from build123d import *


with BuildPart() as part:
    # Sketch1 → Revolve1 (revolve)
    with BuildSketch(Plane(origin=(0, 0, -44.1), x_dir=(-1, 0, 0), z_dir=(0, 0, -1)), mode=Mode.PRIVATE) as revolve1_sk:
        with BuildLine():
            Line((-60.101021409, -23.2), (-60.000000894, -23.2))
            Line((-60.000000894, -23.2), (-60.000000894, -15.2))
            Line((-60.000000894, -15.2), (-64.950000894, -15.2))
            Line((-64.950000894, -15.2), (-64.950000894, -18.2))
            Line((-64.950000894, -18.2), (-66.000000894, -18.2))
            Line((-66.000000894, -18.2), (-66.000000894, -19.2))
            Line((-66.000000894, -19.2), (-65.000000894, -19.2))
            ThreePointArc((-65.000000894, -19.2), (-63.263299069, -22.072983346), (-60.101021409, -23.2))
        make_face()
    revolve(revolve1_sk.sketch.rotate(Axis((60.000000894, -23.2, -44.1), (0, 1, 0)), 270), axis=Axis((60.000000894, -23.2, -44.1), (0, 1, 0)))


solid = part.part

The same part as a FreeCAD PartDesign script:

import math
import FreeCAD as App
import Part
import Sketcher

V = App.Vector

doc = App.newDocument("Part")
body = doc.addObject("PartDesign::Body", "Body")

sketch1 = doc.addObject("Sketcher::SketchObject", "Sketch")
body.addObject(sketch1)
sketch1.AttachmentSupport = (doc.XY_Plane, [""])
sketch1.MapMode = "FlatFace"
sketch1.AttachmentOffset = App.Placement(V(0, 0, -44.1), App.Rotation())
sketch1.addGeometry([
    Part.LineSegment(V(60.1, -23.2, 0), V(60, -23.2, 0)),
    Part.LineSegment(V(60, -23.2, 0), V(60, -15.2, 0)),
    Part.LineSegment(V(60, -15.2, 0), V(64.95, -15.2, 0)),
    Part.LineSegment(V(64.95, -15.2, 0), V(64.95, -18.2, 0)),
    Part.LineSegment(V(64.95, -18.2, 0), V(66, -18.2, 0)),
    Part.LineSegment(V(66, -18.2, 0), V(66, -19.2, 0)),
    Part.LineSegment(V(66, -19.2, 0), V(65, -19.2, 0)),
    Part.ArcOfCircle(Part.Circle(V(60.1, -18.2, 0), V(0, 0, 1), 5), math.radians(-90), math.radians(-12)),
], False)
sketch1.addGeometry(Part.LineSegment(V(60, -23.2, 0), V(60, -15.2, 0)), True)
sketch1.addConstraint([
    Sketcher.Constraint("Coincident", 0, 2, 1, 1),
    Sketcher.Constraint("Coincident", 1, 2, 2, 1),
    Sketcher.Constraint("Coincident", 2, 2, 3, 1),
    Sketcher.Constraint("Coincident", 3, 2, 4, 1),
    Sketcher.Constraint("Coincident", 4, 2, 5, 1),
    Sketcher.Constraint("Coincident", 5, 2, 6, 1),
    Sketcher.Constraint("Coincident", 6, 2, 7, 2),
    Sketcher.Constraint("Tangent", 7, 1, 0, 1),
    Sketcher.Constraint("Horizontal", 0),
    Sketcher.Constraint("Vertical", 1),
    Sketcher.Constraint("Horizontal", 2),
    Sketcher.Constraint("Vertical", 3),
    Sketcher.Constraint("Horizontal", 4),
    Sketcher.Constraint("Vertical", 5),
    Sketcher.Constraint("Horizontal", 6),
    Sketcher.Constraint("Vertical", 8),
    Sketcher.Constraint("Coincident", 8, 1, 0, 2),
    Sketcher.Constraint("Horizontal", 7, 3, 3, 2),
    Sketcher.Constraint("Horizontal", 2, 2, 8, 2),
    Sketcher.Constraint("Equal", 6, 5),
    Sketcher.Constraint("Radius", 7, 5.0),
    Sketcher.Constraint("DistanceX", 6, 2, 6, 1, 1.0),
    Sketcher.Constraint("DistanceY", 1, 1, 1, 2, 8.0),
    Sketcher.Constraint("DistanceX", -1, 1, 0, 2, 60.000001),
    Sketcher.Constraint("DistanceX", -1, 1, 4, 2, 66.000001),
    Sketcher.Constraint("DistanceX", 2, 1, 2, 2, 4.95),
    Sketcher.Constraint("DistanceY", 7, 3, -1, 1, 18.2),
])
revolution = doc.addObject("PartDesign::Revolution", "Revolution")
body.addObject(revolution)
revolution.Profile = sketch1
revolution.ReferenceAxis = (sketch1, ["Axis0"])
revolution.Angle = 360

doc.recompute()
